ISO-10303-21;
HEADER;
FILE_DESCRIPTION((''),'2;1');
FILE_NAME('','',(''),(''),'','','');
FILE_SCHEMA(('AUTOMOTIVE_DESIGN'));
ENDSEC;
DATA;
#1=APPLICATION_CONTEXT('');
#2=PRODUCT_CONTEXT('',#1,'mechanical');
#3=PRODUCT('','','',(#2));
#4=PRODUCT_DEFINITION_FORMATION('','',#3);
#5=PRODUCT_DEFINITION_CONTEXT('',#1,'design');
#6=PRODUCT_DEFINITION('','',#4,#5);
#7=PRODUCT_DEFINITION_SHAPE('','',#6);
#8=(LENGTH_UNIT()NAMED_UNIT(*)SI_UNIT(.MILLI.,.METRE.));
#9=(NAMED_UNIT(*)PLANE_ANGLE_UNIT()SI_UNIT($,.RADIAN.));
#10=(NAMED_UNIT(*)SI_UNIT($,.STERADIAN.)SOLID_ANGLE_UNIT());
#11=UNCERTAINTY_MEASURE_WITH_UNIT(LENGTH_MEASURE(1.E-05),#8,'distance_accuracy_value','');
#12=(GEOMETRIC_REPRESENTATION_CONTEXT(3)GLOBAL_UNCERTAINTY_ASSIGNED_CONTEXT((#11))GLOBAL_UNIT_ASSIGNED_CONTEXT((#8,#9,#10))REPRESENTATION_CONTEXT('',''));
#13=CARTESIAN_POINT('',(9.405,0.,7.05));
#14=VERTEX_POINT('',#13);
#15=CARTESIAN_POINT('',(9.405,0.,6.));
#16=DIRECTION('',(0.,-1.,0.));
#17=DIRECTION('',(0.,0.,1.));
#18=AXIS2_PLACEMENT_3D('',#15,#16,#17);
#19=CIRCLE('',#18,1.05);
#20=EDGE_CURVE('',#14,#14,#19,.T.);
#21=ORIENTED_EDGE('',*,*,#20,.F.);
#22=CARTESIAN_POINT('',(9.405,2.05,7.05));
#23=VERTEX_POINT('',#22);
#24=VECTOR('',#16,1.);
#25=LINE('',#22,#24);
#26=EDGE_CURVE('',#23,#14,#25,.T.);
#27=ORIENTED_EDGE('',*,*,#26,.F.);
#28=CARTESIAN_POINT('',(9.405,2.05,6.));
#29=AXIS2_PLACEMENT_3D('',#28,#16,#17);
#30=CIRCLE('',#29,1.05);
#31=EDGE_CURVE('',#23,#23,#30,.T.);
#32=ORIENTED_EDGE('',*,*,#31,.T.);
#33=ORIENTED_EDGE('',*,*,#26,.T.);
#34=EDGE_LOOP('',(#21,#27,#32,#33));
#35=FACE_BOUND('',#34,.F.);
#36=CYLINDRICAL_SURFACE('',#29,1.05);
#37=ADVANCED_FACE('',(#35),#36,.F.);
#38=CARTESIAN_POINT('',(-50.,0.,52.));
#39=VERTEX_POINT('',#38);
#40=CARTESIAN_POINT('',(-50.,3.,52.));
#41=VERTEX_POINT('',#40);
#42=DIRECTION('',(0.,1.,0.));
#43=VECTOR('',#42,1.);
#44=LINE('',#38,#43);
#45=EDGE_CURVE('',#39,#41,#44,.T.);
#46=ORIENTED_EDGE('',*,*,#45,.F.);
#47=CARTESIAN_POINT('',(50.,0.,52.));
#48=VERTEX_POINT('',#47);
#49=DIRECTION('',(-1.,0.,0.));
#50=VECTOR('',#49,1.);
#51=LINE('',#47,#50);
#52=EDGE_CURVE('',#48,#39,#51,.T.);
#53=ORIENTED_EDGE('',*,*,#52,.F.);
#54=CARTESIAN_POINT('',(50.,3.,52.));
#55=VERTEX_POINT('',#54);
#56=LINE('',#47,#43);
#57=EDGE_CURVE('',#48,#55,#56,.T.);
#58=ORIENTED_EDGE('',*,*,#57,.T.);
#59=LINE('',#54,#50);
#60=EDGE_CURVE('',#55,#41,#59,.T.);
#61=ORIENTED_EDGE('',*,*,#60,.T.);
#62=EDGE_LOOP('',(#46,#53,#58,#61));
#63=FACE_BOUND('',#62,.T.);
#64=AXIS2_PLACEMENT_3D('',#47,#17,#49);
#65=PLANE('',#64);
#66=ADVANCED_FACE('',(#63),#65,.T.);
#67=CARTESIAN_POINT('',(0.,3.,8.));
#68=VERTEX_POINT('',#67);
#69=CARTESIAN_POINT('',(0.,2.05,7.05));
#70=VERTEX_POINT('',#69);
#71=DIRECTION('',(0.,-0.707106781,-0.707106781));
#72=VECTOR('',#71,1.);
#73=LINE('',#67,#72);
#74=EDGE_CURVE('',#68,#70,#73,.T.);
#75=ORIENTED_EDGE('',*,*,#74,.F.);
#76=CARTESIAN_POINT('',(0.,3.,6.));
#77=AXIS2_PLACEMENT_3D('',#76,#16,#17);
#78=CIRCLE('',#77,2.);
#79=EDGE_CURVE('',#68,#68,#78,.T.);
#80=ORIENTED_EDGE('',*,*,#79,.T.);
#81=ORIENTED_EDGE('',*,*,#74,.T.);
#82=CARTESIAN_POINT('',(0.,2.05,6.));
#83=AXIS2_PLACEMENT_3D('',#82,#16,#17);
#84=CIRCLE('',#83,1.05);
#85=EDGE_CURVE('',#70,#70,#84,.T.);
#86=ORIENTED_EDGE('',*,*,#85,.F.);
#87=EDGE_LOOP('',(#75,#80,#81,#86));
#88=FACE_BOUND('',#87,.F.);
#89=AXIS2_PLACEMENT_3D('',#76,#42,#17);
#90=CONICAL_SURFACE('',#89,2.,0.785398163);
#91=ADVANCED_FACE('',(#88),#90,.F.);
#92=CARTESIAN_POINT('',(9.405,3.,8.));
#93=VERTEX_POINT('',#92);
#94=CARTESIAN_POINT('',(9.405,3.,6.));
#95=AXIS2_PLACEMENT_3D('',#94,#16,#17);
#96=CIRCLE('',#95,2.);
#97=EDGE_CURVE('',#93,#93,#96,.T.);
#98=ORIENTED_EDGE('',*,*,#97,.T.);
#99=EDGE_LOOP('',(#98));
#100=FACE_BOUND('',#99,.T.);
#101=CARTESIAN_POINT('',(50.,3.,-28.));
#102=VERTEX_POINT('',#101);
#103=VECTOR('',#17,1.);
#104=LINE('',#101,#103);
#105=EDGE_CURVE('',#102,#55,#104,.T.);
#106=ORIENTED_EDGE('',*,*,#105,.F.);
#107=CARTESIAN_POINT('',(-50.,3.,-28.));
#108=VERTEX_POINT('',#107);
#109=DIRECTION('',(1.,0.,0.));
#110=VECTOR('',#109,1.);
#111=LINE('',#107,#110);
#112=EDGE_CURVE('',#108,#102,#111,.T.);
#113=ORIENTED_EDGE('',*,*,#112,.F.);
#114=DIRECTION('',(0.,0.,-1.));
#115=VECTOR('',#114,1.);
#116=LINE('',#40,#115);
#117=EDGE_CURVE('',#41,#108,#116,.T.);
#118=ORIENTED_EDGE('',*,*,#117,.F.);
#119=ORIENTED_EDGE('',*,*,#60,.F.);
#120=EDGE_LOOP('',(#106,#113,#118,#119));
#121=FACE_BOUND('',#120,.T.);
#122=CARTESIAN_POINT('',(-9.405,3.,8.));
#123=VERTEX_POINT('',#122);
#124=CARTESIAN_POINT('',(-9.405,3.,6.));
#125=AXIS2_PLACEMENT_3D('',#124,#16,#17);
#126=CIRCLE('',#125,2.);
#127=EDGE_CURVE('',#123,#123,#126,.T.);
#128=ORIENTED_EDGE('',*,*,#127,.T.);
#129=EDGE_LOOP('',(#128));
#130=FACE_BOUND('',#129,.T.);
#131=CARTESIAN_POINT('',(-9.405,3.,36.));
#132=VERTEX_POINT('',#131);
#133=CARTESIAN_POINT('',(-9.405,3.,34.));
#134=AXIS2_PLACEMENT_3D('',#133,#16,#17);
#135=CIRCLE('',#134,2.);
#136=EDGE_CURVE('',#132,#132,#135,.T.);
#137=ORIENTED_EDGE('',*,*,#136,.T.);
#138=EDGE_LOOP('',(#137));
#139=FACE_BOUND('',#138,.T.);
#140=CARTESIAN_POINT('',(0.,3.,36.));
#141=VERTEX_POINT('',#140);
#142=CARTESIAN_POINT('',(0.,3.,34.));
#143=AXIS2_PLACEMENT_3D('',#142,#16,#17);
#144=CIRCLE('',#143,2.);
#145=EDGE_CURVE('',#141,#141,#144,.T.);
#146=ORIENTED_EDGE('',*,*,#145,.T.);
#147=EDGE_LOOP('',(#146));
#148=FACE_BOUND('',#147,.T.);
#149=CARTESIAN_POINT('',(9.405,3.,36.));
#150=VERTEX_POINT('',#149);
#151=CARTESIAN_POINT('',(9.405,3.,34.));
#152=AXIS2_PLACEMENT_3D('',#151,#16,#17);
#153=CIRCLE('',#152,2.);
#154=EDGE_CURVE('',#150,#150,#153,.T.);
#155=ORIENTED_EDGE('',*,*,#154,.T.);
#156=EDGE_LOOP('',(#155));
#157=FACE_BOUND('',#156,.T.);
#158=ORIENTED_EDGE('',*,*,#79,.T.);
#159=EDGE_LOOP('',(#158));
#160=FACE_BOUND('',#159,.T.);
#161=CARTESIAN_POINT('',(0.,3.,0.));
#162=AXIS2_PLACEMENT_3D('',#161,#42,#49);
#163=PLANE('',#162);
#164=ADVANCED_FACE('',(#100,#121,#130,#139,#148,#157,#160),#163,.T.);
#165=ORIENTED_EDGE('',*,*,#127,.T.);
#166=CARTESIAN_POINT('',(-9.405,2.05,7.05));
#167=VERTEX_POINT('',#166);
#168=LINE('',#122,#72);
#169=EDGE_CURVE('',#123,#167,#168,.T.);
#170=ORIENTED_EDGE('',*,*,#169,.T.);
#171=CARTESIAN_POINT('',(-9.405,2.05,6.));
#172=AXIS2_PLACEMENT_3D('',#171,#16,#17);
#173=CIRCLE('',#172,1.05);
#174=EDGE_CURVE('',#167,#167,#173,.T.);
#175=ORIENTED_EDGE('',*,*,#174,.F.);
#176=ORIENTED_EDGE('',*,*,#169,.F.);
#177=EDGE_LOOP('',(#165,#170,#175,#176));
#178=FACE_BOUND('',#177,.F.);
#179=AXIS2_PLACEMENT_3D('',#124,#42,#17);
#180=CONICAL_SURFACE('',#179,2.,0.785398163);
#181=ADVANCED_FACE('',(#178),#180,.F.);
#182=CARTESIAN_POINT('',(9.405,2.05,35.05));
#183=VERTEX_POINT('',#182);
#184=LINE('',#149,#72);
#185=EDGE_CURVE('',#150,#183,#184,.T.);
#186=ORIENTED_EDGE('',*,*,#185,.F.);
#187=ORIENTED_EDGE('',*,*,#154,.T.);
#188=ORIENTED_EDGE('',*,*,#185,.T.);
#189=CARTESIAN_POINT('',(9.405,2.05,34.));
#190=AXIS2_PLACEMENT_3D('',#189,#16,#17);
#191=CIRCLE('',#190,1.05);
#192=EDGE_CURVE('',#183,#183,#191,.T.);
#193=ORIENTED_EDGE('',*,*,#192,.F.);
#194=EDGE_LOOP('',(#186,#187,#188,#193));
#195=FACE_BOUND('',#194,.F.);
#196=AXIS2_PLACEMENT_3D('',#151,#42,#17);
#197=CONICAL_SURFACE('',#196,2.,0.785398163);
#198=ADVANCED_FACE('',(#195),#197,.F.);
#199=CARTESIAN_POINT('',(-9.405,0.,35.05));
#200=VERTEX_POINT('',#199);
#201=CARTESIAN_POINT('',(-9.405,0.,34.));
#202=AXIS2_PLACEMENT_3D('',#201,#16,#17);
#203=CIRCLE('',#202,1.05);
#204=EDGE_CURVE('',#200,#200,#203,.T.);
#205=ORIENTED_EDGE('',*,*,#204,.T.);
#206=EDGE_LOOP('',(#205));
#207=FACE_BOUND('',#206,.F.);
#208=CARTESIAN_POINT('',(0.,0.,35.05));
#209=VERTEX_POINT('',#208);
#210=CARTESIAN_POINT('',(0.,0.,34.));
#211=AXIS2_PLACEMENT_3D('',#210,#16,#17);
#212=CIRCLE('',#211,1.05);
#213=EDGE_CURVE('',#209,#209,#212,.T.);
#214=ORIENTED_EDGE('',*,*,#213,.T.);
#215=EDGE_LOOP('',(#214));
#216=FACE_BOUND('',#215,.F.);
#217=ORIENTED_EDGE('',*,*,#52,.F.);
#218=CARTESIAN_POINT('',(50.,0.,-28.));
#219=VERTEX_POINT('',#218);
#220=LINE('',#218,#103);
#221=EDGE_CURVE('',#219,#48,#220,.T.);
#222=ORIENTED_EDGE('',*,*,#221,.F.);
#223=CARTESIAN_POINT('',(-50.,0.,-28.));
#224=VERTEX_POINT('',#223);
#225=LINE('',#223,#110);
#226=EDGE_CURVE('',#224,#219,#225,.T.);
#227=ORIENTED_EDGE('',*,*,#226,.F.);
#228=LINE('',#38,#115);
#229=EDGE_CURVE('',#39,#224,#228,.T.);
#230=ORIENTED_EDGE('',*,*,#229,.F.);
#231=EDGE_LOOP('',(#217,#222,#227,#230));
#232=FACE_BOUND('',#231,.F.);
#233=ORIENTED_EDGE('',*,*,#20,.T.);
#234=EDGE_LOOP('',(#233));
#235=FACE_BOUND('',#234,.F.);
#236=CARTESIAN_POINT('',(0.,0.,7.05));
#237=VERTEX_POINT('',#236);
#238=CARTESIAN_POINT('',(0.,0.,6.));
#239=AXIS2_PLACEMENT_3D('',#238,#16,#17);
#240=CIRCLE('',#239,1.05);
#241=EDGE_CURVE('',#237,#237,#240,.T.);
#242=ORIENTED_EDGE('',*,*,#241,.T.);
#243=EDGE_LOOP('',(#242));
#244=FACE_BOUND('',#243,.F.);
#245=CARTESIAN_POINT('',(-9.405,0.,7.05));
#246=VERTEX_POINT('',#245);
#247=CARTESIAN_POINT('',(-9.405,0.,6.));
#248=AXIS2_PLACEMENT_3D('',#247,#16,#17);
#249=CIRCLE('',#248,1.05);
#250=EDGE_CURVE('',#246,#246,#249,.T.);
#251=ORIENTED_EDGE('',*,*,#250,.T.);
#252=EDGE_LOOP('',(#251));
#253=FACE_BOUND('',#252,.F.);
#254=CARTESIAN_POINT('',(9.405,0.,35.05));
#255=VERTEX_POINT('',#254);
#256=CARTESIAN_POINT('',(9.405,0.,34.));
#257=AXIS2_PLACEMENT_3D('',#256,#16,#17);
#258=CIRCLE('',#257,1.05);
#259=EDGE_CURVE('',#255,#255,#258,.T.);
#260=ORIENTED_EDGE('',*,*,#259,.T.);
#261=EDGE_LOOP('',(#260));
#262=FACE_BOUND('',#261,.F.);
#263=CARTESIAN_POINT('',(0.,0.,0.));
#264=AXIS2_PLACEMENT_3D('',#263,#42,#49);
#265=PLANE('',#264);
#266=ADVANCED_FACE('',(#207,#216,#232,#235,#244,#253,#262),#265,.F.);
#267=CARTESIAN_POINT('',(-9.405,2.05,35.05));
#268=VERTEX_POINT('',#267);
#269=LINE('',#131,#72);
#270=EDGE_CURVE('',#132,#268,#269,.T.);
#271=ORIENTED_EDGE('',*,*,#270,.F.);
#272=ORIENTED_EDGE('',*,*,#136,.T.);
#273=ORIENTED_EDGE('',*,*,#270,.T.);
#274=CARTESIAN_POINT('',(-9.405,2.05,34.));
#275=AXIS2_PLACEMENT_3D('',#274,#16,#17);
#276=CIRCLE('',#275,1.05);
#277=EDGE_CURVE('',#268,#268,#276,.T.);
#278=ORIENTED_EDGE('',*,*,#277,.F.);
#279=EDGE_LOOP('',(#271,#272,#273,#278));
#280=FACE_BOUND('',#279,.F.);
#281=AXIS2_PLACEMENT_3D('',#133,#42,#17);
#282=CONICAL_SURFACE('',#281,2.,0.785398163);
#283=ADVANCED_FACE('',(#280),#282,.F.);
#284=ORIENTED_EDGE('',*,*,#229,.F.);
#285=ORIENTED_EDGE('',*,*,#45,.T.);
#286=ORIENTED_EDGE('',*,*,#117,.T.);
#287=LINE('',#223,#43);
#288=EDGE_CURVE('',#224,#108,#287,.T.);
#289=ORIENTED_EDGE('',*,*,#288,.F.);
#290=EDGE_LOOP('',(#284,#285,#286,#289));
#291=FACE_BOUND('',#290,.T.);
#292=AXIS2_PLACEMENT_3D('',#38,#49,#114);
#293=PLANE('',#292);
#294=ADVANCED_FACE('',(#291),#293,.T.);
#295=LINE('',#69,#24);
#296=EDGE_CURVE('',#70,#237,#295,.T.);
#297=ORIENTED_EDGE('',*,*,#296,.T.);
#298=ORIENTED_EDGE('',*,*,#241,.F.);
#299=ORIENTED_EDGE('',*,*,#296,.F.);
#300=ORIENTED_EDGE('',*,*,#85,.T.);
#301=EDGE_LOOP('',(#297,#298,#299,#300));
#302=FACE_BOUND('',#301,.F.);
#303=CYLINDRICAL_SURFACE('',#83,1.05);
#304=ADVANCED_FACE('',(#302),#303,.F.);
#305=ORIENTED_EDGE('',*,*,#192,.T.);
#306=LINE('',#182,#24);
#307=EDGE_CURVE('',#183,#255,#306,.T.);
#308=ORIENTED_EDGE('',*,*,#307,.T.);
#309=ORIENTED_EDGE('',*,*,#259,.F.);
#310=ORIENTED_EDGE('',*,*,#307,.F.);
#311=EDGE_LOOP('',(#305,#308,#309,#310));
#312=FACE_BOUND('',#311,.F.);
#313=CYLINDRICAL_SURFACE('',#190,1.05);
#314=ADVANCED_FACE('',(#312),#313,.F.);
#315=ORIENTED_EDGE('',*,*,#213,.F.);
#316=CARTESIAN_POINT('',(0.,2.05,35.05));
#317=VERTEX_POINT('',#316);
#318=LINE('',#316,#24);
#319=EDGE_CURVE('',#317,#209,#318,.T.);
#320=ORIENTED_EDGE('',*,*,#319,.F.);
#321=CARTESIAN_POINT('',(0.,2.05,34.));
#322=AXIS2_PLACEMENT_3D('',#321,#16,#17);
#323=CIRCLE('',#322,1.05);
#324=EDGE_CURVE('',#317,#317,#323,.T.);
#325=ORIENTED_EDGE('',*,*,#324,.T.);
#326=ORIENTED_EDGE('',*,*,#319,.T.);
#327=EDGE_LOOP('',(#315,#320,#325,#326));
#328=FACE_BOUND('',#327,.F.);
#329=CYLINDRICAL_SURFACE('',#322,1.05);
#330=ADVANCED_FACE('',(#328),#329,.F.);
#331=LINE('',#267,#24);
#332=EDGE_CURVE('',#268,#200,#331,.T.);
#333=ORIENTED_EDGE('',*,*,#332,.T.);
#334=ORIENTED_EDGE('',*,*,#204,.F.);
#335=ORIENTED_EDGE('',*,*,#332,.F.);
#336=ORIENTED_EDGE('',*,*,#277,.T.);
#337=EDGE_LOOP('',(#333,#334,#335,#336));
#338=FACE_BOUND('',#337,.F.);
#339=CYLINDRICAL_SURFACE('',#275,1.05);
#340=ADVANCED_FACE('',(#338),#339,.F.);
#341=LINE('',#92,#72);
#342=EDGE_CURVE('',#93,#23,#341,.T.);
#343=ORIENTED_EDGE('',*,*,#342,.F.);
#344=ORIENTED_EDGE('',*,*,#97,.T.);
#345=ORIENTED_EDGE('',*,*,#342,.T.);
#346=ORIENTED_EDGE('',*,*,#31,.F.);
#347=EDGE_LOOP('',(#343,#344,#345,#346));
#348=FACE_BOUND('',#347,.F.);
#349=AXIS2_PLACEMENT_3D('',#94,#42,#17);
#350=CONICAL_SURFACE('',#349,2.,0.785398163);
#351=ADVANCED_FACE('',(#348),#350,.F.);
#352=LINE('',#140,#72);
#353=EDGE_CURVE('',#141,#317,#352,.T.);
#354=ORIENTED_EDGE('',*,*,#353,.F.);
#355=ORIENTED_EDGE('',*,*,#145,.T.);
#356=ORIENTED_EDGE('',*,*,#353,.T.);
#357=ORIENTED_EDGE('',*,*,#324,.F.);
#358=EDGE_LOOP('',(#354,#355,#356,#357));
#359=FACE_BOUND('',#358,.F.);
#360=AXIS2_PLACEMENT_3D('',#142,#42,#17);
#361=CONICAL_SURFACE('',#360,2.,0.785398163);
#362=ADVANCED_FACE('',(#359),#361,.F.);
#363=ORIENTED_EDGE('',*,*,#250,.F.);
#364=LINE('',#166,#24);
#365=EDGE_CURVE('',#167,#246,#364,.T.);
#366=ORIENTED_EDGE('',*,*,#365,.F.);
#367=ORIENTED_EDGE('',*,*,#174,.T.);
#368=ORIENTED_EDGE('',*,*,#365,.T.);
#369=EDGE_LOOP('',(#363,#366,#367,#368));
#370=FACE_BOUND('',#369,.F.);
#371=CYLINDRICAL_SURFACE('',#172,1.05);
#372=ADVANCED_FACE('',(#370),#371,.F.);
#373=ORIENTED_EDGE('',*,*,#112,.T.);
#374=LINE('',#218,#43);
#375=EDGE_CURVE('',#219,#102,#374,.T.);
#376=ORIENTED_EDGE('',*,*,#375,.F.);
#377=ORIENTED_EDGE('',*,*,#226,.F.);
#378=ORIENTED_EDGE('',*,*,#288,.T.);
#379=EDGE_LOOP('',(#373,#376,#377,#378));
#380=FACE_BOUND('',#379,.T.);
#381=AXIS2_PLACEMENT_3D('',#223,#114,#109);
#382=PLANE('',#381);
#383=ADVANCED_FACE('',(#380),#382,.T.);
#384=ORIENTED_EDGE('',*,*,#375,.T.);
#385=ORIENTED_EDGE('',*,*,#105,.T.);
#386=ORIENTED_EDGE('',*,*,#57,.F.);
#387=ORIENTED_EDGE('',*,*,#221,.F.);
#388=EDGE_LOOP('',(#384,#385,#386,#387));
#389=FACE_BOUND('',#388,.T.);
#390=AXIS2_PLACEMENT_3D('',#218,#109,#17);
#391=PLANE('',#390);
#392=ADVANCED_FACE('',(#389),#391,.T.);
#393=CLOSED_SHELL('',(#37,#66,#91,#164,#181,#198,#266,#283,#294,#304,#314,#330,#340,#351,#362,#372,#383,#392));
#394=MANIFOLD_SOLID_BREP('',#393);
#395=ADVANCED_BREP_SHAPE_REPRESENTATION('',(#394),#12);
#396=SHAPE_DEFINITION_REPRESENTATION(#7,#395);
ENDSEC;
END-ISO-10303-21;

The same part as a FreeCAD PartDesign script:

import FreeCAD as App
import Part
import Sketcher
from FreeCAD import Vector
Q = App.Units.Quantity

doc = App.newDocument("Part")
body = doc.addObject("PartDesign::Body", "Body")

# Sketch on XZ plane
sketch1 = body.newObject("Sketcher::SketchObject", "Sketch")
sketch1.AttachmentSupport = (doc.getObject("XZ_Plane"), [""])
sketch1.MapMode = "FlatFace"
sketch1.addGeometry(Part.LineSegment(Vector(50, -28, 0), Vector(-50, -28, 0)), False)
sketch1.addGeometry(Part.LineSegment(Vector(-50, -28, 0), Vector(-50, 52, 0)), False)
sketch1.addGeometry(Part.LineSegment(Vector(-50, 52, 0), Vector(50, 52, 0)), False)
sketch1.addGeometry(Part.LineSegment(Vector(50, 52, 0), Vector(50, -28, 0)), False)
sketch1.addConstraint(Sketcher.Constraint("Coincident", 0, 2, 1, 1))
sketch1.addConstraint(Sketcher.Constraint("Coincident", 1, 2, 2, 1))
sketch1.addConstraint(Sketcher.Constraint("Coincident", 2, 2, 3, 1))
sketch1.addConstraint(Sketcher.Constraint("Coincident", 3, 2, 0, 1))
sketch1.addConstraint(Sketcher.Constraint("Horizontal", 0))
sketch1.addConstraint(Sketcher.Constraint("Vertical", 1))
sketch1.addConstraint(Sketcher.Constraint("Horizontal", 2))
sketch1.addConstraint(Sketcher.Constraint("Vertical", 3))
sketch1.addConstraint(Sketcher.Constraint("DistanceX", 0, 2, 0, 1, Q("100 mm")))
sketch1.addConstraint(Sketcher.Constraint("DistanceY", 1, 1, 1, 2, Q("80 mm")))
sketch1.addConstraint(Sketcher.Constraint("DistanceX", 0, 2, -1, 1, Q("50 mm")))
sketch1.addConstraint(Sketcher.Constraint("DistanceY", 0, 2, -1, 1, Q("28 mm")))
pad1 = body.newObject("PartDesign::Pad", "Pad")
pad1.Profile = sketch1
pad1.Length = 3
pad1.Reversed = True

# Sketch on XZ plane
sketch2 = body.newObject("Sketcher::SketchObject", "Sketch001")
sketch2.AttachmentSupport = (doc.getObject("XZ_Plane"), [""])
sketch2.MapMode = "FlatFace"
sketch2.AttachmentOffset = App.Placement(Vector(0, 0, -3), App.Rotation())
sketch2.addGeometry(Part.Circle(Vector(-9.4, 6, 0), Vector(0, 0, 1), 1.1), False)
sketch2.addGeometry(Part.Circle(Vector(0, 6, 0), Vector(0, 0, 1), 1.1), False)
sketch2.addGeometry(Part.Circle(Vector(9.4, 6, 0), Vector(0, 0, 1), 1.1), False)
sketch2.addGeometry(Part.Circle(Vector(9.4, 34, 0), Vector(0, 0, 1), 1.1), False)
sketch2.addGeometry(Part.Circle(Vector(0, 34, 0), Vector(0, 0, 1), 1.1), False)
sketch2.addGeometry(Part.Circle(Vector(-9.4, 34, 0), Vector(0, 0, 1), 1.1), False)
sketch2.addConstraint(Sketcher.Constraint("Equal", 0, 1))
sketch2.addConstraint(Sketcher.Constraint("Equal", 1, 2))
sketch2.addConstraint(Sketcher.Constraint("Equal", 2, 3))
sketch2.addConstraint(Sketcher.Constraint("Equal", 3, 4))
sketch2.addConstraint(Sketcher.Constraint("Equal", 4, 5))
sketch2.addConstraint(Sketcher.Constraint("Symmetric", 0, 3, 2, 3, -2))
sketch2.addConstraint(Sketcher.Constraint("Symmetric", 3, 3, 5, 3, -2))
sketch2.addConstraint(Sketcher.Constraint("PointOnObject", 1, 3, -2))
sketch2.addConstraint(Sketcher.Constraint("PointOnObject", 4, 3, -2))
sketch2.addConstraint(Sketcher.Constraint("Horizontal", 0, 3, 1, 3))
sketch2.addConstraint(Sketcher.Constraint("Horizontal", 3, 3, 4, 3))
sketch2.addConstraint(Sketcher.Constraint("Vertical", 2, 3, 3, 3))
sketch2.addConstraint(Sketcher.Constraint("Diameter", 0, Q("2.1 mm")))
sketch2.addConstraint(Sketcher.Constraint("DistanceY", -1, 1, 0, 3, Q("6 mm")))
sketch2.addConstraint(Sketcher.Constraint("DistanceY", -1, 1, 3, 3, Q("34 mm")))
sketch2.addConstraint(Sketcher.Constraint("DistanceX", 0, 3, 2, 3, Q("18.81 mm")))
doc.recompute()
hole = body.newObject("PartDesign::Hole", "Hole")
hole.Profile = sketch2
hole.ThreadType = "None"
hole.Diameter = 2.1
hole.DepthType = "Dimension"
hole.Depth = 3
hole.DrillPoint = "Flat"
hole.HoleCutType = "Countersink"
hole.HoleCutDiameter = 4
hole.HoleCutCountersinkAngle = 90
hole.Reversed = True

doc.recompute()
